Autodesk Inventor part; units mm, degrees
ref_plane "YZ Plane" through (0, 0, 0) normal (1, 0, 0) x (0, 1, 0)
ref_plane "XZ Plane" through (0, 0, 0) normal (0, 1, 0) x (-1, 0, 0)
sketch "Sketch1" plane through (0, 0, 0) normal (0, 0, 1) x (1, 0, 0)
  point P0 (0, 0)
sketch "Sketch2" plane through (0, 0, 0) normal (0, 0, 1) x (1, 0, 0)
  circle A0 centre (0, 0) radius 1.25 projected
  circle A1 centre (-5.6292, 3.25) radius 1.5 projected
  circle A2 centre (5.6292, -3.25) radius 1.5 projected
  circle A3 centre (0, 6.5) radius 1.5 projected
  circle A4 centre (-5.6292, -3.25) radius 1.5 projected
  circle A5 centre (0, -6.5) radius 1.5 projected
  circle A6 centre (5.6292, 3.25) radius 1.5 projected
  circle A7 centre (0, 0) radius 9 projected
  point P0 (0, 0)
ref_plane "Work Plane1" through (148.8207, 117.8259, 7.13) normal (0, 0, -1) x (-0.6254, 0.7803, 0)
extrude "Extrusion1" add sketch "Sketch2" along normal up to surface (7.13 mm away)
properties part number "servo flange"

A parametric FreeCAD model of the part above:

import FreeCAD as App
import Part
import Sketcher

doc = App.newDocument("Part")
body = doc.addObject("PartDesign::Body", "Body")

# Sketch on XY plane
sketch1 = body.newObject("Sketcher::SketchObject", "Sketch")
sketch1.AttachmentSupport = (doc.getObject("XY_Plane"), [""])
sketch1.MapMode = "FlatFace"
sketch1.addGeometry(Part.Circle(App.Vector(0, 0, 0), App.Vector(0, 0, 1), 9), False)
sketch1.addGeometry(Part.Circle(App.Vector(-5.6292, -3.25, 0), App.Vector(0, 0, 1), 1.5), False)
sketch1.addGeometry(Part.Circle(App.Vector(0, -6.5, 0), App.Vector(0, 0, 1), 1.5), False)
sketch1.addGeometry(Part.Circle(App.Vector(5.6292, -3.25, 0), App.Vector(0, 0, 1), 1.5), False)
sketch1.addGeometry(Part.Circle(App.Vector(-5.6292, 3.25, 0), App.Vector(0, 0, 1), 1.5), False)
sketch1.addGeometry(Part.Circle(App.Vector(0, 0, 0), App.Vector(0, 0, 1), 1.25), False)
sketch1.addGeometry(Part.Circle(App.Vector(5.6292, 3.25, 0), App.Vector(0, 0, 1), 1.5), False)
sketch1.addGeometry(Part.Circle(App.Vector(0, 6.5, 0), App.Vector(0, 0, 1), 1.5), False)
sketch1.addConstraint(Sketcher.Constraint("Coincident", 0, 3, -1, 1))
sketch1.addConstraint(Sketcher.Constraint("Coincident", 5, 3, -1, 1))
sketch1.addConstraint(Sketcher.Constraint("Equal", 1, 2))
sketch1.addConstraint(Sketcher.Constraint("Equal", 2, 3))
sketch1.addConstraint(Sketcher.Constraint("Equal", 3, 4))
sketch1.addConstraint(Sketcher.Constraint("Equal", 4, 6))
sketch1.addConstraint(Sketcher.Constraint("Equal", 6, 7))
sketch1.addConstraint(Sketcher.Constraint("Symmetric", 3, 3, 4, 3, -1, 1))
sketch1.addConstraint(Sketcher.Constraint("Symmetric", 1, 3, 6, 3, -1, 1))
sketch1.addConstraint(Sketcher.Constraint("Symmetric", 2, 3, 7, 3, -1, 1))
sketch1.addConstraint(Sketcher.Constraint("Symmetric", 1, 3, 3, 3, -2))
sketch1.addConstraint(Sketcher.Constraint("PointOnObject", 2, 3, -2))
sketch1.addConstraint(Sketcher.Constraint("Diameter", 0, 18.0))
sketch1.addConstraint(Sketcher.Constraint("Diameter", 1, 3.0))
sketch1.addConstraint(Sketcher.Constraint("Diameter", 5, 2.5))
sketch1.addConstraint(Sketcher.Constraint("DistanceY", 2, 3, -1, 1, 6.5))
sketch1.addConstraint(Sketcher.Constraint("DistanceY", 1, 3, 4, 3, 6.5))
sketch1.addConstraint(Sketcher.Constraint("DistanceX", 1, 3, -1, 1, 5.6292))
pad1 = body.newObject("PartDesign::Pad", "Pad")
pad1.Profile = sketch1
pad1.Length = 7.13

doc.recompute()
